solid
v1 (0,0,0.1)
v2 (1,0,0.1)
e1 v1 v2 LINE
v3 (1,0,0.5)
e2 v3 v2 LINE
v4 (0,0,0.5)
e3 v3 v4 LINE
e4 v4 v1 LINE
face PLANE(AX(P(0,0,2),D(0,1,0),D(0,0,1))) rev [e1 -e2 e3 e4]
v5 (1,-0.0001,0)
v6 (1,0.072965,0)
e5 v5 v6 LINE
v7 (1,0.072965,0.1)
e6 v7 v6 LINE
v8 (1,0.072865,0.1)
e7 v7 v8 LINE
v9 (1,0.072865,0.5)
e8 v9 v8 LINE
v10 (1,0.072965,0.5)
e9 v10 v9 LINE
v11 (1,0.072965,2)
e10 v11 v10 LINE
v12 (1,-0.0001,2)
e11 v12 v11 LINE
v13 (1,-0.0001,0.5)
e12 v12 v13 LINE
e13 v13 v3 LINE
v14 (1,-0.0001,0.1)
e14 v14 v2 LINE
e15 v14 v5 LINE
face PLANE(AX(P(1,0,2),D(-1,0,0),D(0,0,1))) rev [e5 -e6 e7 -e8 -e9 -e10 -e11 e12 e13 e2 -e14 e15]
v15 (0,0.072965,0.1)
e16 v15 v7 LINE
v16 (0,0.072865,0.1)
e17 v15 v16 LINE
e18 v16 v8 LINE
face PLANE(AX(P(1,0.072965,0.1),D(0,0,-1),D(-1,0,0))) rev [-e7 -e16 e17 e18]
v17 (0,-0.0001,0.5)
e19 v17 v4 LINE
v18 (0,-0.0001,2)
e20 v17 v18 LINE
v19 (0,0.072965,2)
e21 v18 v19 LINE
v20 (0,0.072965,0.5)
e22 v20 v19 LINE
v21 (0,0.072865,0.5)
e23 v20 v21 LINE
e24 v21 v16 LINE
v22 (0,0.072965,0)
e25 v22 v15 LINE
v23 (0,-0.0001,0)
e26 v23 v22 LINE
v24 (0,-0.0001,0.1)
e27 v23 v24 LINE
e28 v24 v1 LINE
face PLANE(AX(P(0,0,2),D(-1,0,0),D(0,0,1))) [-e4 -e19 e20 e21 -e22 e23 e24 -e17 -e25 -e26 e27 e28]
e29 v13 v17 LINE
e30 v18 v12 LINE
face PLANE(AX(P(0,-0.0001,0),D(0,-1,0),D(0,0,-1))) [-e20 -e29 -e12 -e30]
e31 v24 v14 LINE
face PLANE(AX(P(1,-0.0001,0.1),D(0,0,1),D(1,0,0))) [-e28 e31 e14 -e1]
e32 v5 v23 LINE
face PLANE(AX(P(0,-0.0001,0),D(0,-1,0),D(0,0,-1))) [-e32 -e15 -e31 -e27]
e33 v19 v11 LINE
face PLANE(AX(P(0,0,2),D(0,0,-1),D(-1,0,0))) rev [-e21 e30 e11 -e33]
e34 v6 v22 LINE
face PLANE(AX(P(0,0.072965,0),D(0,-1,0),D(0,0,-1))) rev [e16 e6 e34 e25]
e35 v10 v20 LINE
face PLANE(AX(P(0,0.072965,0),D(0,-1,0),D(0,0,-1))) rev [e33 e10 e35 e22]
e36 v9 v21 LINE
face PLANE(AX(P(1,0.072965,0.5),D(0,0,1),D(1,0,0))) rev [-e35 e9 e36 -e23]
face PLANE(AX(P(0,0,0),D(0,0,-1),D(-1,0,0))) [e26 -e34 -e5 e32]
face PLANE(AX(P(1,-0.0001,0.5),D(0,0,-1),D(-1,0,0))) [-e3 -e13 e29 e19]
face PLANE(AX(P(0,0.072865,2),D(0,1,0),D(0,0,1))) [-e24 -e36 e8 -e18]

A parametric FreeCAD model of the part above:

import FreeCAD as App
import Part
import Sketcher
from FreeCAD import Vector

doc = App.newDocument("Part")
body = doc.addObject("PartDesign::Body", "Body")

sketch1 = body.newObject("Sketcher::SketchObject", "Sketch")
sketch1.AttachmentSupport = (doc.getObject("XY_Plane"), [""])
sketch1.MapMode = "FlatFace"
sketch1.addGeometry(Part.LineSegment(Vector(0, 0.07, 0), Vector(0, 0, 0)), False)
sketch1.addGeometry(Part.LineSegment(Vector(0, 0, 0), Vector(1, 0, 0)), False)
sketch1.addGeometry(Part.LineSegment(Vector(1, 0, 0), Vector(1, 0.07, 0)), False)
sketch1.addGeometry(Part.LineSegment(Vector(1, 0.07, 0), Vector(0, 0.07, 0)), False)
sketch1.addConstraint(Sketcher.Constraint("Coincident", 0, 2, 1, 1))
sketch1.addConstraint(Sketcher.Constraint("Coincident", 1, 2, 2, 1))
sketch1.addConstraint(Sketcher.Constraint("Coincident", 2, 2, 3, 1))
sketch1.addConstraint(Sketcher.Constraint("Coincident", 3, 2, 0, 1))
sketch1.addConstraint(Sketcher.Constraint("Vertical", 0))
sketch1.addConstraint(Sketcher.Constraint("Horizontal", 1))
sketch1.addConstraint(Sketcher.Constraint("Vertical", 2))
sketch1.addConstraint(Sketcher.Constraint("Horizontal", 3))
sketch1.addConstraint(Sketcher.Constraint("Coincident", 0, 2, -1, 1))
sketch1.addConstraint(Sketcher.Constraint("DistanceX", 1, 1, 1, 2, 1.0))
sketch1.addConstraint(Sketcher.Constraint("DistanceY", 0, 2, 0, 1, 0.072865))
pad1 = body.newObject("PartDesign::Pad", "Pad")
pad1.Profile = sketch1
pad1.Length = 2

sketch2 = body.newObject("Sketcher::SketchObject", "Sketch001")
sketch2.AttachmentSupport = (doc.getObject("XZ_Plane"), [""])
sketch2.MapMode = "FlatFace"
sketch2.AttachmentOffset = App.Placement(Vector(0, 0, -0.072865), App.Rotation())
sketch2.addGeometry(Part.LineSegment(Vector(0, 0, 0), Vector(0, 0.1, 0)), False)
sketch2.addGeometry(Part.LineSegment(Vector(0, 0.1, 0), Vector(1, 0.1, 0)), False)
sketch2.addGeometry(Part.LineSegment(Vector(1, 0.1, 0), Vector(1, 0, 0)), False)
sketch2.addGeometry(Part.LineSegment(Vector(1, 0, 0), Vector(0, 0, 0)), False)
sketch2.addGeometry(Part.LineSegment(Vector(0, 0.5, 0), Vector(0, 2, 0)), False)
sketch2.addGeometry(Part.LineSegment(Vector(0, 2, 0), Vector(1, 2, 0)), False)
sketch2.addGeometry(Part.LineSegment(Vector(1, 2, 0), Vector(1, 0.5, 0)), False)
sketch2.addGeometry(Part.LineSegment(Vector(1, 0.5, 0), Vector(0, 0.5, 0)), False)
sketch2.addConstraint(Sketcher.Constraint("Coincident", 0, 2, 1, 1))
sketch2.addConstraint(Sketcher.Constraint("Coincident", 1, 2, 2, 1))
sketch2.addConstraint(Sketcher.Constraint("Coincident", 2, 2, 3, 1))
sketch2.addConstraint(Sketcher.Constraint("Coincident", 3, 2, 0, 1))
sketch2.addConstraint(Sketcher.Constraint("Coincident", 4, 2, 5, 1))
sketch2.addConstraint(Sketcher.Constraint("Coincident", 5, 2, 6, 1))
sketch2.addConstraint(Sketcher.Constraint("Coincident", 6, 2, 7, 1))
sketch2.addConstraint(Sketcher.Constraint("Coincident", 7, 2, 4, 1))
sketch2.addConstraint(Sketcher.Constraint("Vertical", 0))
sketch2.addConstraint(Sketcher.Constraint("Horizontal", 1))
sketch2.addConstraint(Sketcher.Constraint("Vertical", 2))
sketch2.addConstraint(Sketcher.Constraint("Horizontal", 3))
sketch2.addConstraint(Sketcher.Constraint("Vertical", 4))
sketch2.addConstraint(Sketcher.Constraint("Horizontal", 5))
sketch2.addConstraint(Sketcher.Constraint("Vertical", 6))
sketch2.addConstraint(Sketcher.Constraint("Horizontal", 7))
sketch2.addConstraint(Sketcher.Constraint("Coincident", 3, 2, -1, 1))
sketch2.addConstraint(Sketcher.Constraint("PointOnObject", 4, 2, -2))
sketch2.addConstraint(Sketcher.Constraint("Vertical", 2, 2, 5, 2))
sketch2.addConstraint(Sketcher.Constraint("DistanceX", 1, 1, 1, 2, 1.0))
sketch2.addConstraint(Sketcher.Constraint("DistanceY", 0, 1, 0, 2, 0.1))
sketch2.addConstraint(Sketcher.Constraint("DistanceY", 4, 1, 4, 2, 1.5))
sketch2.addConstraint(Sketcher.Constraint("DistanceY", -1, 1, 4, 2, 2.0))
pad2 = body.newObject("PartDesign::Pad", "Pad001")
pad2.Profile = sketch2
pad2.Length = 0.0001
pad2.Reversed = True

sketch3 = body.newObject("Sketcher::SketchObject", "Sketch002")
sketch3.AttachmentSupport = (doc.getObject("XZ_Plane"), [""])
sketch3.MapMode = "FlatFace"
sketch3.addGeometry(Part.LineSegment(Vector(0, 0, 0), Vector(0, 0.1, 0)), False)
sketch3.addGeometry(Part.LineSegment(Vector(0, 0.1, 0), Vector(1, 0.1, 0)), False)
sketch3.addGeometry(Part.LineSegment(Vector(1, 0.1, 0), Vector(1, 0, 0)), False)
sketch3.addGeometry(Part.LineSegment(Vector(1, 0, 0), Vector(0, 0, 0)), False)
sketch3.addGeometry(Part.LineSegment(Vector(0, 0.5, 0), Vector(0, 2, 0)), False)
sketch3.addGeometry(Part.LineSegment(Vector(0, 2, 0), Vector(1, 2, 0)), False)
sketch3.addGeometry(Part.LineSegment(Vector(1, 2, 0), Vector(1, 0.5, 0)), False)
sketch3.addGeometry(Part.LineSegment(Vector(1, 0.5, 0), Vector(0, 0.5, 0)), False)
sketch3.addConstraint(Sketcher.Constraint("Coincident", 0, 2, 1, 1))
sketch3.addConstraint(Sketcher.Constraint("Coincident", 1, 2, 2, 1))
sketch3.addConstraint(Sketcher.Constraint("Coincident", 2, 2, 3, 1))
sketch3.addConstraint(Sketcher.Constraint("Coincident", 3, 2, 0, 1))
sketch3.addConstraint(Sketcher.Constraint("Coincident", 4, 2, 5, 1))
sketch3.addConstraint(Sketcher.Constraint("Coincident", 5, 2, 6, 1))
sketch3.addConstraint(Sketcher.Constraint("Coincident", 6, 2, 7, 1))
sketch3.addConstraint(Sketcher.Constraint("Coincident", 7, 2, 4, 1))
sketch3.addConstraint(Sketcher.Constraint("Vertical", 0))
sketch3.addConstraint(Sketcher.Constraint("Horizontal", 1))
sketch3.addConstraint(Sketcher.Constraint("Vertical", 2))
sketch3.addConstraint(Sketcher.Constraint("Horizontal", 3))
sketch3.addConstraint(Sketcher.Constraint("Vertical", 4))
sketch3.addConstraint(Sketcher.Constraint("Horizontal", 5))
sketch3.addConstraint(Sketcher.Constraint("Vertical", 6))
sketch3.addConstraint(Sketcher.Constraint("Horizontal", 7))
sketch3.addConstraint(Sketcher.Constraint("Coincident", 3, 2, -1, 1))
sketch3.addConstraint(Sketcher.Constraint("PointOnObject", 4, 2, -2))
sketch3.addConstraint(Sketcher.Constraint("Vertical", 2, 2, 5, 2))
sketch3.addConstraint(Sketcher.Constraint("DistanceX", 1, 1, 1, 2, 1.0))
sketch3.addConstraint(Sketcher.Constraint("DistanceY", 0, 1, 0, 2, 0.1))
sketch3.addConstraint(Sketcher.Constraint("DistanceY", 4, 1, 4, 2, 1.5))
sketch3.addConstraint(Sketcher.Constraint("DistanceY", -1, 1, 4, 2, 2.0))
pad3 = body.newObject("PartDesign::Pad", "Pad002")
pad3.Profile = sketch3
pad3.Length = 0.0001

doc.recompute()
